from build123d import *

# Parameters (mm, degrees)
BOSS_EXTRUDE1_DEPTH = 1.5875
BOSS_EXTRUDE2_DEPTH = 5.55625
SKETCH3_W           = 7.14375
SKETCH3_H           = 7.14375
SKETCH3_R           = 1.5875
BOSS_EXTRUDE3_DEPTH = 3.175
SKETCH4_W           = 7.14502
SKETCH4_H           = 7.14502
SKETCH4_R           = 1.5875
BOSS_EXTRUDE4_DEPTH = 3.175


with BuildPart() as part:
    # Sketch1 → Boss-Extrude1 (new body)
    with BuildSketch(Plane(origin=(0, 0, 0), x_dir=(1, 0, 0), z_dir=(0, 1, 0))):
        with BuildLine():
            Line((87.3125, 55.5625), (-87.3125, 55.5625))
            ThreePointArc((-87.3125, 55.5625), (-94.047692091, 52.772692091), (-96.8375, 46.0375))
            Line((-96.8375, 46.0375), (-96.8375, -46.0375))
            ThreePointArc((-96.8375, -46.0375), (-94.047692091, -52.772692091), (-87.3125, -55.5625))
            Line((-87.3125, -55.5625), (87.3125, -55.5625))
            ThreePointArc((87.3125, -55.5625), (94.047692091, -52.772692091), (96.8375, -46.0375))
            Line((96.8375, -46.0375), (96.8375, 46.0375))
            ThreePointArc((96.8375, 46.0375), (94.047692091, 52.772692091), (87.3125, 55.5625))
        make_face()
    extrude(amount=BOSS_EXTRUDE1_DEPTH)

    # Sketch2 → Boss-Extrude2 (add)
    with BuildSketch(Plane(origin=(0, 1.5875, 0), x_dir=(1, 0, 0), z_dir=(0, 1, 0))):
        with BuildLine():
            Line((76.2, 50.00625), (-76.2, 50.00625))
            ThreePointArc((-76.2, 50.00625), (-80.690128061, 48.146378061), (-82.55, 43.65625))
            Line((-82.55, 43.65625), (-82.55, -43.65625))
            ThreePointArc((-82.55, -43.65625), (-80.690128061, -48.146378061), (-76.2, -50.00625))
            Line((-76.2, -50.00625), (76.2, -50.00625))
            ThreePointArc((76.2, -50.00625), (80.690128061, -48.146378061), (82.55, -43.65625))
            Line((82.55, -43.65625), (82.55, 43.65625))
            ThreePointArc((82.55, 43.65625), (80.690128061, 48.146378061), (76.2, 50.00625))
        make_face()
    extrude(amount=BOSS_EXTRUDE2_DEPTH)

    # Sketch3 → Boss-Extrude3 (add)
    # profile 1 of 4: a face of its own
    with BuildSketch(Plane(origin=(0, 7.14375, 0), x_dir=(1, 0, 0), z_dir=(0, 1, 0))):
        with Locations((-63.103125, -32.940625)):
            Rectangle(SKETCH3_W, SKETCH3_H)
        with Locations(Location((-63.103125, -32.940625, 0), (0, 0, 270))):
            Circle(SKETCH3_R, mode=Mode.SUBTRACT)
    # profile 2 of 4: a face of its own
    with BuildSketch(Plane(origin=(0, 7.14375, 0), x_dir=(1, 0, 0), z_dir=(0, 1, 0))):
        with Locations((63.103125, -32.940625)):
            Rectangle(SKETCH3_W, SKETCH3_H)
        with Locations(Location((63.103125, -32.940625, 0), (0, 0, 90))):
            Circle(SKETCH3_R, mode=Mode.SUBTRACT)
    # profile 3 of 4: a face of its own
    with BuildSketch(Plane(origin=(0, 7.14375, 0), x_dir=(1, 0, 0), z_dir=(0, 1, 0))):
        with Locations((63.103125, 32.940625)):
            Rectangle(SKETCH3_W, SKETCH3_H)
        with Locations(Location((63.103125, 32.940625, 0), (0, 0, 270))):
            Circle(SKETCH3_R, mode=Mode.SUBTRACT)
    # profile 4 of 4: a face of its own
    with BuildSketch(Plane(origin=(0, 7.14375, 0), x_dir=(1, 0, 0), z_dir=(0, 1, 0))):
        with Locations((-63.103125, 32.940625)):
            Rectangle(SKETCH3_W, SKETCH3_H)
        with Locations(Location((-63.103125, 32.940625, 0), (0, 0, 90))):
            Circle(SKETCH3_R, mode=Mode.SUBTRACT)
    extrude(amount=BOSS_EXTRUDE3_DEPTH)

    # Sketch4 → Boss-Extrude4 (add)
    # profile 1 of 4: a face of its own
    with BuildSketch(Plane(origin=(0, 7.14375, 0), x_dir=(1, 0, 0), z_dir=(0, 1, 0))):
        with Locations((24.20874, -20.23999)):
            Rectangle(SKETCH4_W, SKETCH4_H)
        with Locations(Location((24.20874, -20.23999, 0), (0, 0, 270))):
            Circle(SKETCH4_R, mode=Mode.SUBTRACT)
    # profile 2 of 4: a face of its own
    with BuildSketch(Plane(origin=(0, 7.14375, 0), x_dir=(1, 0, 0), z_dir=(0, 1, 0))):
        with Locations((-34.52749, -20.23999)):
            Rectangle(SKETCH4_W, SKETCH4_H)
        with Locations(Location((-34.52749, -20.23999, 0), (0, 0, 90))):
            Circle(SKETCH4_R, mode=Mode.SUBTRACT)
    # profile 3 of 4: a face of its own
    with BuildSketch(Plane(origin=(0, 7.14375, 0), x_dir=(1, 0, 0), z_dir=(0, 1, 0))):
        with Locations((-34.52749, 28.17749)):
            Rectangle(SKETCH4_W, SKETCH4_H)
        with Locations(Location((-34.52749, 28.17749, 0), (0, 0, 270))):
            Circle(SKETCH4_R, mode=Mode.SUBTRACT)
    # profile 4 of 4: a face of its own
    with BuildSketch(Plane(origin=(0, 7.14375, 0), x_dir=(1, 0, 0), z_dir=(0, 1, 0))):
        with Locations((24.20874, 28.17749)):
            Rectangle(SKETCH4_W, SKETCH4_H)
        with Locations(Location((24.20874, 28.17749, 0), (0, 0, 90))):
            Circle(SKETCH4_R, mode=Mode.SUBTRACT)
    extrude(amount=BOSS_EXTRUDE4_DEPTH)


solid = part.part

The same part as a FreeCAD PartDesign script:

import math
import FreeCAD as App
import Part
import Sketcher

V = App.Vector
Q = App.Units.Quantity

doc = App.newDocument("Part")
body = doc.addObject("PartDesign::Body", "Body")

# Sketch on XZ plane
sketch1 = body.newObject("Sketcher::SketchObject", "Sketch")
sketch1.AttachmentSupport = (doc.getObject("XZ_Plane"), [""])
sketch1.MapMode = "FlatFace"
sketch1.addGeometry(Part.LineSegment(V(87, -56, 0), V(-87, -56, 0)), False)
sketch1.addGeometry(Part.ArcOfCircle(Part.Circle(V(-87, -46, 0), V(0, 0, 1), 10), math.radians(180), math.radians(270)), False)
sketch1.addGeometry(Part.LineSegment(V(-97, -46, 0), V(-97, 46, 0)), False)
sketch1.addGeometry(Part.ArcOfCircle(Part.Circle(V(-87, 46, 0), V(0, 0, 1), 10), math.radians(90), math.radians(180)), False)
sketch1.addGeometry(Part.LineSegment(V(-87, 56, 0), V(87, 56, 0)), False)
sketch1.addGeometry(Part.ArcOfCircle(Part.Circle(V(87, 46, 0), V(0, 0, 1), 10), math.radians(0), math.radians(90)), False)
sketch1.addGeometry(Part.LineSegment(V(97, 46, 0), V(97, -46, 0)), False)
sketch1.addGeometry(Part.ArcOfCircle(Part.Circle(V(87, -46, 0), V(0, 0, 1), 10), math.radians(-90), math.radians(0)), False)
sketch1.addConstraint(Sketcher.Constraint("Tangent", 0, 2, 1, 2))
sketch1.addConstraint(Sketcher.Constraint("Tangent", 1, 1, 2, 1))
sketch1.addConstraint(Sketcher.Constraint("Tangent", 2, 2, 3, 2))
sketch1.addConstraint(Sketcher.Constraint("Tangent", 3, 1, 4, 1))
sketch1.addConstraint(Sketcher.Constraint("Tangent", 4, 2, 5, 2))
sketch1.addConstraint(Sketcher.Constraint("Tangent", 5, 1, 6, 1))
sketch1.addConstraint(Sketcher.Constraint("Tangent", 6, 2, 7, 2))
sketch1.addConstraint(Sketcher.Constraint("Tangent", 7, 1, 0, 1))
sketch1.addConstraint(Sketcher.Constraint("Horizontal", 0))
sketch1.addConstraint(Sketcher.Constraint("Vertical", 2))
sketch1.addConstraint(Sketcher.Constraint("Horizontal", 4))
sketch1.addConstraint(Sketcher.Constraint("Vertical", 6))
sketch1.addConstraint(Sketcher.Constraint("Equal", 1, 3))
sketch1.addConstraint(Sketcher.Constraint("Equal", 3, 5))
sketch1.addConstraint(Sketcher.Constraint("Equal", 5, 7))
sketch1.addConstraint(Sketcher.Constraint("Symmetric", 1, 3, 5, 3, -1, 1))
sketch1.addConstraint(Sketcher.Constraint("Radius", 1, Q("0.375 in")))
sketch1.addConstraint(Sketcher.Constraint("DistanceY", 0, 2, 3, 3, Q("4 in")))
sketch1.addConstraint(Sketcher.Constraint("DistanceX", 0, 2, 0, 1, Q("6.875 in")))
pad1 = body.newObject("PartDesign::Pad", "Pad")
pad1.Profile = sketch1
pad1.Length = Q("0.0625 in")
pad1.Reversed = True

# Sketch on XZ plane
sketch2 = body.newObject("Sketcher::SketchObject", "Sketch001")
sketch2.AttachmentSupport = (doc.getObject("XZ_Plane"), [""])
sketch2.MapMode = "FlatFace"
sketch2.AttachmentOffset = App.Placement(V(0, 0, -0.0625 * 25.4), App.Rotation())
sketch2.addGeometry(Part.LineSegment(V(76, -50, 0), V(-76, -50, 0)), False)
sketch2.addGeometry(Part.ArcOfCircle(Part.Circle(V(-76, -44, 0), V(0, 0, 1), 6), math.radians(180), math.radians(270)), False)
sketch2.addGeometry(Part.LineSegment(V(-83, -44, 0), V(-83, 44, 0)), False)
sketch2.addGeometry(Part.ArcOfCircle(Part.Circle(V(-76, 44, 0), V(0, 0, 1), 6), math.radians(90), math.radians(180)), False)
sketch2.addGeometry(Part.LineSegment(V(-76, 50, 0), V(76, 50, 0)), False)
sketch2.addGeometry(Part.ArcOfCircle(Part.Circle(V(76, 44, 0), V(0, 0, 1), 6), math.radians(0), math.radians(90)), False)
sketch2.addGeometry(Part.LineSegment(V(83, 44, 0), V(83, -44, 0)), False)
sketch2.addGeometry(Part.ArcOfCircle(Part.Circle(V(76, -44, 0), V(0, 0, 1), 6), math.radians(-90), math.radians(0)), False)
sketch2.addConstraint(Sketcher.Constraint("Tangent", 0, 2, 1, 2))
sketch2.addConstraint(Sketcher.Constraint("Tangent", 1, 1, 2, 1))
sketch2.addConstraint(Sketcher.Constraint("Tangent", 2, 2, 3, 2))
sketch2.addConstraint(Sketcher.Constraint("Tangent", 3, 1, 4, 1))
sketch2.addConstraint(Sketcher.Constraint("Tangent", 4, 2, 5, 2))
sketch2.addConstraint(Sketcher.Constraint("Tangent", 5, 1, 6, 1))
sketch2.addConstraint(Sketcher.Constraint("Tangent", 6, 2, 7, 2))
sketch2.addConstraint(Sketcher.Constraint("Tangent", 7, 1, 0, 1))
sketch2.addConstraint(Sketcher.Constraint("Horizontal", 0))
sketch2.addConstraint(Sketcher.Constraint("Vertical", 2))
sketch2.addConstraint(Sketcher.Constraint("Horizontal", 4))
sketch2.addConstraint(Sketcher.Constraint("Vertical", 6))
sketch2.addConstraint(Sketcher.Constraint("Equal", 1, 3))
sketch2.addConstraint(Sketcher.Constraint("Equal", 3, 5))
sketch2.addConstraint(Sketcher.Constraint("Equal", 5, 7))
sketch2.addConstraint(Sketcher.Constraint("Symmetric", 1, 3, 5, 3, -1, 1))
sketch2.addConstraint(Sketcher.Constraint("DistanceX", 0, 2, 0, 1, Q("6 in")))
sketch2.addConstraint(Sketcher.Constraint("Radius", 1, Q("0.25 in")))
sketch2.addConstraint(Sketcher.Constraint("DistanceY", 2, 1, 2, 2, Q("3.4375 in")))
pad2 = body.newObject("PartDesign::Pad", "Pad001")
pad2.Profile = sketch2
pad2.Length = Q("0.21875 in")
pad2.Reversed = True

# Sketch on XZ plane
sketch3 = body.newObject("Sketcher::SketchObject", "Sketch002")
sketch3.AttachmentSupport = (doc.getObject("XZ_Plane"), [""])
sketch3.MapMode = "FlatFace"
sketch3.AttachmentOffset = App.Placement(V(0, 0, -0.28125 * 25.4), App.Rotation())
sketch3.addGeometry(Part.LineSegment(V(-66.7, 29.4, 0), V(-66.7, 36.5, 0)), False)
sketch3.addGeometry(Part.LineSegment(V(-66.7, 36.5, 0), V(-59.5, 36.5, 0)), False)
sketch3.addGeometry(Part.LineSegment(V(-59.5, 36.5, 0), V(-59.5, 29.4, 0)), False)
sketch3.addGeometry(Part.LineSegment(V(-59.5, 29.4, 0), V(-66.7, 29.4, 0)), False)
sketch3.addGeometry(Part.Circle(V(-63.1, 32.9, 0), V(0, 0, 1), 1.6), False)
sketch3.addGeometry(Part.LineSegment(V(59.5, 29.4, 0), V(59.5, 36.5, 0)), False)
sketch3.addGeometry(Part.LineSegment(V(59.5, 36.5, 0), V(66.7, 36.5, 0)), False)
sketch3.addGeometry(Part.LineSegment(V(66.7, 36.5, 0), V(66.7, 29.4, 0)), False)
sketch3.addGeometry(Part.LineSegment(V(66.7, 29.4, 0), V(59.5, 29.4, 0)), False)
sketch3.addGeometry(Part.Circle(V(63.1, 32.9, 0), V(0, 0, 1), 1.6), False)
sketch3.addGeometry(Part.LineSegment(V(59.5, -36.5, 0), V(59.5, -29.4, 0)), False)
sketch3.addGeometry(Part.LineSegment(V(59.5, -29.4, 0), V(66.7, -29.4, 0)), False)
sketch3.addGeometry(Part.LineSegment(V(66.7, -29.4, 0), V(66.7, -36.5, 0)), False)
sketch3.addGeometry(Part.LineSegment(V(66.7, -36.5, 0), V(59.5, -36.5, 0)), False)
sketch3.addGeometry(Part.Circle(V(63.1, -32.9, 0), V(0, 0, 1), 1.6), False)
sketch3.addGeometry(Part.LineSegment(V(-66.7, -36.5, 0), V(-66.7, -29.4, 0)), False)
sketch3.addGeometry(Part.LineSegment(V(-66.7, -29.4, 0), V(-59.5, -29.4, 0)), False)
sketch3.addGeometry(Part.LineSegment(V(-59.5, -29.4, 0), V(-59.5, -36.5, 0)), False)
sketch3.addGeometry(Part.LineSegment(V(-59.5, -36.5, 0), V(-66.7, -36.5, 0)), False)
sketch3.addGeometry(Part.Circle(V(-63.1, -32.9, 0), V(0, 0, 1), 1.6), False)
sketch3.addConstraint(Sketcher.Constraint("Coincident", 0, 2, 1, 1))
sketch3.addConstraint(Sketcher.Constraint("Coincident", 1, 2, 2, 1))
sketch3.addConstraint(Sketcher.Constraint("Coincident", 2, 2, 3, 1))
sketch3.addConstraint(Sketcher.Constraint("Coincident", 3, 2, 0, 1))
sketch3.addConstraint(Sketcher.Constraint("Coincident", 5, 2, 6, 1))
sketch3.addConstraint(Sketcher.Constraint("Coincident", 6, 2, 7, 1))
sketch3.addConstraint(Sketcher.Constraint("Coincident", 7, 2, 8, 1))
sketch3.addConstraint(Sketcher.Constraint("Coincident", 8, 2, 5, 1))
sketch3.addConstraint(Sketcher.Constraint("Coincident", 10, 2, 11, 1))
sketch3.addConstraint(Sketcher.Constraint("Coincident", 11, 2, 12, 1))
sketch3.addConstraint(Sketcher.Constraint("Coincident", 12, 2, 13, 1))
sketch3.addConstraint(Sketcher.Constraint("Coincident", 13, 2, 10, 1))
sketch3.addConstraint(Sketcher.Constraint("Coincident", 15, 2, 16, 1))
sketch3.addConstraint(Sketcher.Constraint("Coincident", 16, 2, 17, 1))
sketch3.addConstraint(Sketcher.Constraint("Coincident", 17, 2, 18, 1))
sketch3.addConstraint(Sketcher.Constraint("Coincident", 18, 2, 15, 1))
sketch3.addConstraint(Sketcher.Constraint("Vertical", 0))
sketch3.addConstraint(Sketcher.Constraint("Horizontal", 1))
sketch3.addConstraint(Sketcher.Constraint("Vertical", 2))
sketch3.addConstraint(Sketcher.Constraint("Horizontal", 3))
sketch3.addConstraint(Sketcher.Constraint("Vertical", 5))
sketch3.addConstraint(Sketcher.Constraint("Horizontal", 6))
sketch3.addConstraint(Sketcher.Constraint("Vertical", 7))
sketch3.addConstraint(Sketcher.Constraint("Horizontal", 8))
sketch3.addConstraint(Sketcher.Constraint("Vertical", 10))
sketch3.addConstraint(Sketcher.Constraint("Horizontal", 11))
sketch3.addConstraint(Sketcher.Constraint("Vertical", 12))
sketch3.addConstraint(Sketcher.Constraint("Horizontal", 13))
sketch3.addConstraint(Sketcher.Constraint("Vertical", 15))
sketch3.addConstraint(Sketcher.Constraint("Horizontal", 16))
sketch3.addConstraint(Sketcher.Constraint("Vertical", 17))
sketch3.addConstraint(Sketcher.Constraint("Horizontal", 18))
sketch3.addConstraint(Sketcher.Constraint("Equal", 4, 9))
sketch3.addConstraint(Sketcher.Constraint("Equal", 9, 14))
sketch3.addConstraint(Sketcher.Constraint("Equal", 14, 19))
sketch3.addConstraint(Sketcher.Constraint("Symmetric", 4, 3, 14, 3, -1, 1))
sketch3.addConstraint(Sketcher.Constraint("Symmetric", 9, 3, 19, 3, -1, 1))
sketch3.addConstraint(Sketcher.Constraint("Symmetric", 2, 2, 10, 2, -1, 1))
sketch3.addConstraint(Sketcher.Constraint("Symmetric", 0, 2, 12, 2, -1, 1))
sketch3.addConstraint(Sketcher.Constraint("Symmetric", 7, 2, 15, 2, -1, 1))
sketch3.addConstraint(Sketcher.Constraint("Symmetric", 5, 2, 17, 2, -1, 1))
sketch3.addConstraint(Sketcher.Constraint("Symmetric", 4, 3, 9, 3, -2))
sketch3.addConstraint(Sketcher.Constraint("Symmetric", 1, 2, 5, 2, -2))
sketch3.addConstraint(Sketcher.Constraint("Symmetric", 3, 2, 7, 2, -2))
sketch3.addConstraint(Sketcher.Constraint("Equal", 18, 0))
sketch3.addConstraint(Sketcher.Constraint("Diameter", 4, Q("0.125 in")))
sketch3.addConstraint(Sketcher.Constraint("DistanceX", 1, 1, 1, 2, Q("0.28125 in")))
sketch3.addConstraint(Sketcher.Constraint("DistanceX", 4, 3, -1, 1, Q("2.484375 in")))
sketch3.addConstraint(Sketcher.Constraint("DistanceY", -1, 1, 4, 3, Q("1.296875 in")))
sketch3.addConstraint(Sketcher.Constraint("DistanceX", 0, 2, -1, 1, Q("2.625 in")))
sketch3.addConstraint(Sketcher.Constraint("DistanceY", -1, 1, 0, 2, Q("1.4375 in")))
pad3 = body.newObject("PartDesign::Pad", "Pad002")
pad3.Profile = sketch3
pad3.Length = Q("0.125 in")
pad3.Reversed = True

# Sketch on XZ plane
sketch4 = body.newObject("Sketcher::SketchObject", "Sketch003")
sketch4.AttachmentSupport = (doc.getObject("XZ_Plane"), [""])
sketch4.MapMode = "FlatFace"
sketch4.AttachmentOffset = App.Placement(V(0, 0, -0.28125 * 25.4), App.Rotation())
sketch4.addGeometry(Part.LineSegment(V(20.6, 16.7, 0), V(20.6, 23.8, 0)), False)
sketch4.addGeometry(Part.LineSegment(V(20.6, 23.8, 0), V(27.8, 23.8, 0)), False)
sketch4.addGeometry(Part.LineSegment(V(27.8, 23.8, 0), V(27.8, 16.7, 0)), False)
sketch4.addGeometry(Part.LineSegment(V(27.8, 16.7, 0), V(20.6, 16.7, 0)), False)
sketch4.addGeometry(Part.Circle(V(24.2, 20.2, 0), V(0, 0, 1), 1.6), False)
sketch4.addGeometry(Part.LineSegment(V(-38.1, 16.7, 0), V(-38.1, 23.8, 0)), False)
sketch4.addGeometry(Part.LineSegment(V(-38.1, 23.8, 0), V(-31, 23.8, 0)), False)
sketch4.addGeometry(Part.LineSegment(V(-31, 23.8, 0), V(-31, 16.7, 0)), False)
sketch4.addGeometry(Part.LineSegment(V(-31, 16.7, 0), V(-38.1, 16.7, 0)), False)
sketch4.addGeometry(Part.Circle(V(-34.5, 20.2, 0), V(0, 0, 1), 1.6), False)
sketch4.addGeometry(Part.LineSegment(V(-38.1, -31.8, 0), V(-38.1, -24.6, 0)), False)
sketch4.addGeometry(Part.LineSegment(V(-38.1, -24.6, 0), V(-31, -24.6, 0)), False)
sketch4.addGeometry(Part.LineSegment(V(-31, -24.6, 0), V(-31, -31.8, 0)), False)
sketch4.addGeometry(Part.LineSegment(V(-31, -31.8, 0), V(-38.1, -31.8, 0)), False)
sketch4.addGeometry(Part.Circle(V(-34.5, -28.2, 0), V(0, 0, 1), 1.6), False)
sketch4.addGeometry(Part.LineSegment(V(20.6, -31.8, 0), V(20.6, -24.6, 0)), False)
sketch4.addGeometry(Part.LineSegment(V(20.6, -24.6, 0), V(27.8, -24.6, 0)), False)
sketch4.addGeometry(Part.LineSegment(V(27.8, -24.6, 0), V(27.8, -31.8, 0)), False)
sketch4.addGeometry(Part.LineSegment(V(27.8, -31.8, 0), V(20.6, -31.8, 0)), False)
sketch4.addGeometry(Part.Circle(V(24.2, -28.2, 0), V(0, 0, 1), 1.6), False)
sketch4.addConstraint(Sketcher.Constraint("Coincident", 0, 2, 1, 1))
sketch4.addConstraint(Sketcher.Constraint("Coincident", 1, 2, 2, 1))
sketch4.addConstraint(Sketcher.Constraint("Coincident", 2, 2, 3, 1))
sketch4.addConstraint(Sketcher.Constraint("Coincident", 3, 2, 0, 1))
sketch4.addConstraint(Sketcher.Constraint("Coincident", 5, 2, 6, 1))
sketch4.addConstraint(Sketcher.Constraint("Coincident", 6, 2, 7, 1))
sketch4.addConstraint(Sketcher.Constraint("Coincident", 7, 2, 8, 1))
sketch4.addConstraint(Sketcher.Constraint("Coincident", 8, 2, 5, 1))
sketch4.addConstraint(Sketcher.Constraint("Coincident", 10, 2, 11, 1))
sketch4.addConstraint(Sketcher.Constraint("Coincident", 11, 2, 12, 1))
sketch4.addConstraint(Sketcher.Constraint("Coincident", 12, 2, 13, 1))
sketch4.addConstraint(Sketcher.Constraint("Coincident", 13, 2, 10, 1))
sketch4.addConstraint(Sketcher.Constraint("Coincident", 15, 2, 16, 1))
sketch4.addConstraint(Sketcher.Constraint("Coincident", 16, 2, 17, 1))
sketch4.addConstraint(Sketcher.Constraint("Coincident", 17, 2, 18, 1))
sketch4.addConstraint(Sketcher.Constraint("Coincident", 18, 2, 15, 1))
sketch4.addConstraint(Sketcher.Constraint("Vertical", 0))
sketch4.addConstraint(Sketcher.Constraint("Horizontal", 1))
sketch4.addConstraint(Sketcher.Constraint("Vertical", 2))
sketch4.addConstraint(Sketcher.Constraint("Horizontal", 3))
sketch4.addConstraint(Sketcher.Constraint("Vertical", 5))
sketch4.addConstraint(Sketcher.Constraint("Horizontal", 6))
sketch4.addConstraint(Sketcher.Constraint("Vertical", 7))
sketch4.addConstraint(Sketcher.Constraint("Horizontal", 8))
sketch4.addConstraint(Sketcher.Constraint("Vertical", 10))
sketch4.addConstraint(Sketcher.Constraint("Horizontal", 11))
sketch4.addConstraint(Sketcher.Constraint("Vertical", 12))
sketch4.addConstraint(Sketcher.Constraint("Horizontal", 13))
sketch4.addConstraint(Sketcher.Constraint("Vertical", 15))
sketch4.addConstraint(Sketcher.Constraint("Horizontal", 16))
sketch4.addConstraint(Sketcher.Constraint("Vertical", 17))
sketch4.addConstraint(Sketcher.Constraint("Horizontal", 18))
sketch4.addConstraint(Sketcher.Constraint("Equal", 4, 9))
sketch4.addConstraint(Sketcher.Constraint("Equal", 9, 14))
sketch4.addConstraint(Sketcher.Constraint("Equal", 14, 19))
sketch4.addConstraint(Sketcher.Constraint("Horizontal", 4, 3, 9, 3))
sketch4.addConstraint(Sketcher.Constraint("Horizontal", 14, 3, 19, 3))
sketch4.addConstraint(Sketcher.Constraint("Horizontal", 1, 2, 5, 2))
sketch4.addConstraint(Sketcher.Constraint("Horizontal", 3, 2, 7, 2))
sketch4.addConstraint(Sketcher.Constraint("Horizontal", 11, 2, 15, 2))
sketch4.addConstraint(Sketcher.Constraint("Horizontal", 13, 2, 17, 2))
sketch4.addConstraint(Sketcher.Constraint("Vertical", 9, 3, 14, 3))
sketch4.addConstraint(Sketcher.Constraint("Vertical", 4, 3, 19, 3))
sketch4.addConstraint(Sketcher.Constraint("Vertical", 8, 2, 10, 2))
sketch4.addConstraint(Sketcher.Constraint("Vertical", 7, 2, 11, 2))
sketch4.addConstraint(Sketcher.Constraint("Vertical", 3, 2, 15, 2))
sketch4.addConstraint(Sketcher.Constraint("Vertical", 2, 2, 16, 2))
sketch4.addConstraint(Sketcher.Constraint("Equal", 3, 6))
sketch4.addConstraint(Sketcher.Constraint("Equal", 18, 0))
sketch4.addConstraint(Sketcher.Constraint("Equal", 7, 10))
sketch4.addConstraint(Sketcher.Constraint("Diameter", 4, Q("0.125 in")))
sketch4.addConstraint(Sketcher.Constraint("DistanceX", 5, 2, -1, 1, Q("1.5 in")))
sketch4.addConstraint(Sketcher.Constraint("DistanceY", 12, 2, -1, 1, Q("1.25 in")))
sketch4.addConstraint(Sketcher.Constraint("DistanceX", 1, 1, 1, 2, Q("0.2813 in")))
sketch4.addConstraint(Sketcher.Constraint("DistanceY", -1, 1, 0, 2, Q("0.9375 in")))
sketch4.addConstraint(Sketcher.Constraint("DistanceX", -1, 1, 1, 2, Q("1.09375 in")))
sketch4.addConstraint(Sketcher.Constraint("DistanceX", -1, 1, 4, 3, Q("0.9531 in")))
sketch4.addConstraint(Sketcher.Constraint("DistanceY", 14, 3, 9, 3, Q("1.9062 in")))
sketch4.addConstraint(Sketcher.Constraint("DistanceX", 9, 3, 0, 2, Q("2.1718 in")))
sketch4.addConstraint(Sketcher.Constraint("DistanceY", -1, 1, 4, 3, Q("20.23999 mm")))
pad4 = body.newObject("PartDesign::Pad", "Pad003")
pad4.Profile = sketch4
pad4.Length = Q("0.125 in")
pad4.Reversed = True

doc.recompute()
